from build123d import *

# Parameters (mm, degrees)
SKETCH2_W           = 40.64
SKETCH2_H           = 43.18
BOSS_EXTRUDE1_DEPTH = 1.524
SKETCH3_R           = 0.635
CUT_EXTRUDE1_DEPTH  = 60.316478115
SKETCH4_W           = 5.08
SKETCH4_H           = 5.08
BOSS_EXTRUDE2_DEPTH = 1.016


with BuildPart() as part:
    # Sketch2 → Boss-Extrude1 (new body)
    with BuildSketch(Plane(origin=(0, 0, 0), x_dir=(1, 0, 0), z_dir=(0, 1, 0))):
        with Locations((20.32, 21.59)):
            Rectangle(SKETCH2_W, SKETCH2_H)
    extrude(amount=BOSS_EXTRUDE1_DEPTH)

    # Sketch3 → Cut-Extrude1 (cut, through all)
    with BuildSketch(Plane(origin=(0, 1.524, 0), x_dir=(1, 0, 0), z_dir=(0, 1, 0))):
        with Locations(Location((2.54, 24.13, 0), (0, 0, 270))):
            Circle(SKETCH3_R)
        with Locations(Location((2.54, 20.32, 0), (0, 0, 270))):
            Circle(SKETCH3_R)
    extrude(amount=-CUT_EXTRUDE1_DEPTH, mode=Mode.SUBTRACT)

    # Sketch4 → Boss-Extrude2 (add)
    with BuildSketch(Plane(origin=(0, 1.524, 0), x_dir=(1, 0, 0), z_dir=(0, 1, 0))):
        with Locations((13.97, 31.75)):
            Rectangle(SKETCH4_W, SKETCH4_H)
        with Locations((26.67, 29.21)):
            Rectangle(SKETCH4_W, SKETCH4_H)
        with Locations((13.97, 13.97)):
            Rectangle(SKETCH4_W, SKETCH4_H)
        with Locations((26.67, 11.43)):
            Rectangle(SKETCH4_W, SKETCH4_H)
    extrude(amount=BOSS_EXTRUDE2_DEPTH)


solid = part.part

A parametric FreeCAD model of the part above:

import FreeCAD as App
import Part
import Sketcher
Q = App.Units.Quantity


def add_polygon(sketch, points):
    """Adds a closed chain of lines whose ends are joined by coincident constraints."""
    first, n = sketch.GeometryCount, len(points)
    for a, b in zip(points, points[1:] + points[:1]):
        sketch.addGeometry(Part.LineSegment(App.Vector(*a, 0), App.Vector(*b, 0)), False)
    for i in range(n):
        sketch.addConstraint(Sketcher.Constraint("Coincident", first + i, 2, first + (i + 1) % n, 1))

doc = App.newDocument("Part")
body = doc.addObject("PartDesign::Body", "Body")

# Sketch on XZ plane
sketch1 = body.newObject("Sketcher::SketchObject", "Sketch")
sketch1.AttachmentSupport = (doc.getObject("XZ_Plane"), [""])
sketch1.MapMode = "FlatFace"
add_polygon(sketch1, [(0, -43), (0, 0), (41, 0), (41, -43)])  # lines 0-3
sketch1.addConstraint(Sketcher.Constraint("Vertical", 0))
sketch1.addConstraint(Sketcher.Constraint("Horizontal", 1))
sketch1.addConstraint(Sketcher.Constraint("Vertical", 2))
sketch1.addConstraint(Sketcher.Constraint("Horizontal", 3))
sketch1.addConstraint(Sketcher.Constraint("Coincident", 0, 2, -1, 1))
sketch1.addConstraint(Sketcher.Constraint("DistanceX", 1, 1, 1, 2, Q("1.6 in")))
sketch1.addConstraint(Sketcher.Constraint("DistanceY", 0, 1, 0, 2, Q("1.7 in")))
pad1 = body.newObject("PartDesign::Pad", "Pad")
pad1.Profile = sketch1
pad1.Length = Q("0.06 in")
pad1.Reversed = True

# Sketch on XZ plane
sketch2 = body.newObject("Sketcher::SketchObject", "Sketch001")
sketch2.AttachmentSupport = (doc.getObject("XZ_Plane"), [""])
sketch2.MapMode = "FlatFace"
sketch2.AttachmentOffset = App.Placement(App.Vector(0, 0, -0.06 * 25.4), App.Rotation())
sketch2.addGeometry(Part.Circle(App.Vector(2.5, -24.1, 0), App.Vector(0, 0, 1), 0.6), False)
sketch2.addGeometry(Part.Circle(App.Vector(2.5, -20.3, 0), App.Vector(0, 0, 1), 0.6), False)
sketch2.addConstraint(Sketcher.Constraint("Equal", 0, 1))
sketch2.addConstraint(Sketcher.Constraint("Vertical", 0, 3, 1, 3))
sketch2.addConstraint(Sketcher.Constraint("Diameter", 0, Q("0.05 in")))
sketch2.addConstraint(Sketcher.Constraint("DistanceX", -1, 1, 0, 3, Q("0.1 in")))
sketch2.addConstraint(Sketcher.Constraint("DistanceY", 1, 3, -1, 1, Q("0.8 in")))
sketch2.addConstraint(Sketcher.Constraint("DistanceY", 0, 3, -1, 1, Q("0.95 in")))
pocket1 = body.newObject("PartDesign::Pocket", "Pocket")
pocket1.Profile = sketch2
pocket1.Type = "ThroughAll"
pocket1.Reversed = True

# Sketch on XZ plane
sketch3 = body.newObject("Sketcher::SketchObject", "Sketch002")
sketch3.AttachmentSupport = (doc.getObject("XZ_Plane"), [""])
sketch3.MapMode = "FlatFace"
sketch3.AttachmentOffset = App.Placement(App.Vector(0, 0, -0.06 * 25.4), App.Rotation())
add_polygon(sketch3, [(11, -34), (11, -29), (17, -29), (17, -34)])  # lines 0-3
add_polygon(sketch3, [(24, -32), (24, -27), (29, -27), (29, -32)])  # lines 4-7
add_polygon(sketch3, [(11, -17), (11, -11), (17, -11), (17, -17)])  # lines 8-11
add_polygon(sketch3, [(24, -14), (24, -9), (29, -9), (29, -14)])  # lines 12-15
sketch3.addConstraint(Sketcher.Constraint("Vertical", 0))
sketch3.addConstraint(Sketcher.Constraint("Horizontal", 1))
sketch3.addConstraint(Sketcher.Constraint("Vertical", 2))
sketch3.addConstraint(Sketcher.Constraint("Horizontal", 3))
sketch3.addConstraint(Sketcher.Constraint("Vertical", 4))
sketch3.addConstraint(Sketcher.Constraint("Horizontal", 5))
sketch3.addConstraint(Sketcher.Constraint("Vertical", 6))
sketch3.addConstraint(Sketcher.Constraint("Horizontal", 7))
sketch3.addConstraint(Sketcher.Constraint("Vertical", 8))
sketch3.addConstraint(Sketcher.Constraint("Horizontal", 9))
sketch3.addConstraint(Sketcher.Constraint("Vertical", 10))
sketch3.addConstraint(Sketcher.Constraint("Horizontal", 11))
sketch3.addConstraint(Sketcher.Constraint("Vertical", 12))
sketch3.addConstraint(Sketcher.Constraint("Horizontal", 13))
sketch3.addConstraint(Sketcher.Constraint("Vertical", 14))
sketch3.addConstraint(Sketcher.Constraint("Horizontal", 15))
sketch3.addConstraint(Sketcher.Constraint("Vertical", 3, 2, 8, 2))
sketch3.addConstraint(Sketcher.Constraint("Vertical", 2, 2, 9, 2))
sketch3.addConstraint(Sketcher.Constraint("Vertical", 7, 2, 12, 2))
sketch3.addConstraint(Sketcher.Constraint("Vertical", 6, 2, 13, 2))
sketch3.addConstraint(Sketcher.Constraint("Equal", 3, 5))
sketch3.addConstraint(Sketcher.Constraint("Equal", 15, 0))
sketch3.addConstraint(Sketcher.Constraint("Equal", 2, 4))
sketch3.addConstraint(Sketcher.Constraint("Equal", 6, 8))
sketch3.addConstraint(Sketcher.Constraint("Equal", 10, 12))
sketch3.addConstraint(Sketcher.Constraint("DistanceX", 1, 1, 1, 2, Q("0.2 in")))
sketch3.addConstraint(Sketcher.Constraint("DistanceX", 1, 2, 4, 2, Q("0.3 in")))
sketch3.addConstraint(Sketcher.Constraint("DistanceY", 1, 2, 4, 2, Q("0.1 in")))
sketch3.addConstraint(Sketcher.Constraint("DistanceY", 0, 2, 8, 2, Q("0.7 in")))
sketch3.addConstraint(Sketcher.Constraint("DistanceY", 9, 2, 12, 2, Q("0.1 in")))
sketch3.addConstraint(Sketcher.Constraint("DistanceX", -1, 1, 0, 2, Q("0.45 in")))
sketch3.addConstraint(Sketcher.Constraint("DistanceY", 0, 2, -1, 1, Q("1.15 in")))
pad2 = body.newObject("PartDesign::Pad", "Pad001")
pad2.Profile = sketch3
pad2.Length = Q("0.04 in")
pad2.Reversed = True

doc.recompute()
